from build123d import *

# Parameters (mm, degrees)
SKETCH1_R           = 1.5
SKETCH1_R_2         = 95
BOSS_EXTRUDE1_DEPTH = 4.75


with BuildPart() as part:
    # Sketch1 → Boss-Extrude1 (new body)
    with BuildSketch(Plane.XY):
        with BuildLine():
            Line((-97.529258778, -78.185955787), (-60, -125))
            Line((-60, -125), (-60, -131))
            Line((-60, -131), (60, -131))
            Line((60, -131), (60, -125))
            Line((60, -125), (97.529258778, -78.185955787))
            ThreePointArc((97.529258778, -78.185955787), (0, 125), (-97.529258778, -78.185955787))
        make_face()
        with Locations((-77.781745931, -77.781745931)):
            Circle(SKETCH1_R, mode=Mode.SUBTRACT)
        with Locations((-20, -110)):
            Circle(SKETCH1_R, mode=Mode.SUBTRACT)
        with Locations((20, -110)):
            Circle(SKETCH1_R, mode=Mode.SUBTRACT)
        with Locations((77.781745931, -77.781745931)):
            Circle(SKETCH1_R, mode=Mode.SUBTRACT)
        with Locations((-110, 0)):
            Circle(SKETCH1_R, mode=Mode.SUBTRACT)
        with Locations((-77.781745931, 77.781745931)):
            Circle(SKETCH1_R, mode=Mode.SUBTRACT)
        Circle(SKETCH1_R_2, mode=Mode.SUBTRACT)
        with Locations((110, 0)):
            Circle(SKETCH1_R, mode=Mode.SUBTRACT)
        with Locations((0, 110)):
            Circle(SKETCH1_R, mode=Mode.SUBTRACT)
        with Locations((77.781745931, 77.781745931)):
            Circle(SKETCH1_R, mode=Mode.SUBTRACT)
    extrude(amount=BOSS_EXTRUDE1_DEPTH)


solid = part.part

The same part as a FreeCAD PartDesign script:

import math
import FreeCAD as App
import Part
import Sketcher
from FreeCAD import Vector

doc = App.newDocument("Part")
params = doc.addObject("Spreadsheet::Sheet", "Params")
for row, (alias, value) in enumerate([
    ("sketch1_diameter", "3 mm"),
    ("sketch1_diameter2", "190 mm"),
    ("sketch1_radius", "125 mm"),
    ("sketch1_width", "120 mm"),
    ("sketch1_height", "6 mm"),
    ("pad1_length", "4.75 mm"),
], start=1):
    params.set(f"A{row}", alias)
    params.set(f"B{row}", "=" + value)
    params.setAlias(f"B{row}", alias)

body = doc.addObject("PartDesign::Body", "Body")

# Sketch on XY plane
sketch1 = body.newObject("Sketcher::SketchObject", "Sketch")
sketch1.AttachmentSupport = (doc.getObject("XY_Plane"), [""])
sketch1.MapMode = "FlatFace"
sketch1.addGeometry([
    Part.LineSegment(Vector(-97.5, -78.2, 0), Vector(-60, -125, 0)),  # 0
    Part.LineSegment(Vector(-60, -125, 0), Vector(-60, -131, 0)),  # 1
    Part.LineSegment(Vector(-60, -131, 0), Vector(60, -131, 0)),  # 2
    Part.LineSegment(Vector(60, -131, 0), Vector(60, -125, 0)),  # 3
    Part.LineSegment(Vector(60, -125, 0), Vector(97.5, -78.2, 0)),  # 4
    Part.ArcOfCircle(Part.Circle(Vector(0, 0, 0), Vector(0, 0, 1), 125), math.radians(-39), math.radians(219)),  # 5
    Part.Circle(Vector(-77.8, -77.8, 0), Vector(0, 0, 1), 1.5),  # 6
    Part.Circle(Vector(-20, -110, 0), Vector(0, 0, 1), 1.5),  # 7
    Part.Circle(Vector(20, -110, 0), Vector(0, 0, 1), 1.5),  # 8
    Part.Circle(Vector(77.8, -77.8, 0), Vector(0, 0, 1), 1.5),  # 9
    Part.Circle(Vector(-110, 0, 0), Vector(0, 0, 1), 1.5),  # 10
    Part.Circle(Vector(-77.8, 77.8, 0), Vector(0, 0, 1), 1.5),  # 11
    Part.Circle(Vector(0, 0, 0), Vector(0, 0, 1), 95),  # 12
    Part.Circle(Vector(110, 0, 0), Vector(0, 0, 1), 1.5),  # 13
    Part.Circle(Vector(0, 110, 0), Vector(0, 0, 1), 1.5),  # 14
    Part.Circle(Vector(77.8, 77.8, 0), Vector(0, 0, 1), 1.5),  # 15
], False)
sketch1.addConstraint([
    Sketcher.Constraint("Coincident", 0, 2, 1, 1),
    Sketcher.Constraint("Coincident", 1, 2, 2, 1),
    Sketcher.Constraint("Coincident", 2, 2, 3, 1),
    Sketcher.Constraint("Coincident", 3, 2, 4, 1),
    Sketcher.Constraint("Tangent", 4, 2, 5, 1),
    Sketcher.Constraint("Tangent", 5, 2, 0, 1),
    Sketcher.Constraint("Vertical", 1),
    Sketcher.Constraint("Horizontal", 2),
    Sketcher.Constraint("Vertical", 3),
    Sketcher.Constraint("Coincident", 5, 3, -1, 1),
    Sketcher.Constraint("Coincident", 12, 3, -1, 1),
    Sketcher.Constraint("Equal", 6, 7),
    Sketcher.Constraint("Equal", 7, 8),
    Sketcher.Constraint("Equal", 8, 9),
    Sketcher.Constraint("Equal", 9, 10),
    Sketcher.Constraint("Equal", 10, 11),
    Sketcher.Constraint("Equal", 11, 13),
    Sketcher.Constraint("Equal", 13, 14),
    Sketcher.Constraint("Equal", 14, 15),
    Sketcher.Constraint("Symmetric", 9, 3, 11, 3, -1, 1),
    Sketcher.Constraint("Symmetric", 10, 3, 13, 3, -1, 1),
    Sketcher.Constraint("Symmetric", 6, 3, 15, 3, -1, 1),
    Sketcher.Constraint("Symmetric", 7, 3, 8, 3, -2),
    Sketcher.Constraint("Symmetric", 6, 3, 9, 3, -2),
    Sketcher.Constraint("Symmetric", 0, 2, 3, 2, -2),
    Sketcher.Constraint("PointOnObject", 10, 3, -1),
    Sketcher.Constraint("PointOnObject", 14, 3, -2),
    Sketcher.Constraint("Diameter", 6, 3.0),
    Sketcher.Constraint("Diameter", 12, 190.0),
    Sketcher.Constraint("Radius", 5, 125.0),
    Sketcher.Constraint("DistanceX", 2, 1, 2, 2, 120.0),
    Sketcher.Constraint("DistanceY", 1, 2, 1, 1, 6.0),
    Sketcher.Constraint("Distance", 0, 60.0),
    Sketcher.Constraint("DistanceX", 7, 3, -1, 1, 20.0),
    Sketcher.Constraint("DistanceY", 7, 3, -1, 1, 110.0),
    Sketcher.Constraint("DistanceX", 10, 3, -1, 1, 110.0),
    Sketcher.Constraint("DistanceY", -1, 1, 14, 3, 110.0),
    Sketcher.Constraint("DistanceX", 6, 3, 9, 3, 155.563492),
    Sketcher.Constraint("DistanceY", 6, 3, 11, 3, 155.563492),
])
sketch1.setExpression("Constraints[27]", "Params.sketch1_diameter")
sketch1.setExpression("Constraints[28]", "Params.sketch1_diameter2")
sketch1.setExpression("Constraints[29]", "Params.sketch1_radius")
sketch1.setExpression("Constraints[30]", "Params.sketch1_width")
sketch1.setExpression("Constraints[31]", "Params.sketch1_height")
pad1 = body.newObject("PartDesign::Pad", "Pad")
pad1.Profile = sketch1
pad1.setExpression("Length", "Params.pad1_length")

doc.recompute()
